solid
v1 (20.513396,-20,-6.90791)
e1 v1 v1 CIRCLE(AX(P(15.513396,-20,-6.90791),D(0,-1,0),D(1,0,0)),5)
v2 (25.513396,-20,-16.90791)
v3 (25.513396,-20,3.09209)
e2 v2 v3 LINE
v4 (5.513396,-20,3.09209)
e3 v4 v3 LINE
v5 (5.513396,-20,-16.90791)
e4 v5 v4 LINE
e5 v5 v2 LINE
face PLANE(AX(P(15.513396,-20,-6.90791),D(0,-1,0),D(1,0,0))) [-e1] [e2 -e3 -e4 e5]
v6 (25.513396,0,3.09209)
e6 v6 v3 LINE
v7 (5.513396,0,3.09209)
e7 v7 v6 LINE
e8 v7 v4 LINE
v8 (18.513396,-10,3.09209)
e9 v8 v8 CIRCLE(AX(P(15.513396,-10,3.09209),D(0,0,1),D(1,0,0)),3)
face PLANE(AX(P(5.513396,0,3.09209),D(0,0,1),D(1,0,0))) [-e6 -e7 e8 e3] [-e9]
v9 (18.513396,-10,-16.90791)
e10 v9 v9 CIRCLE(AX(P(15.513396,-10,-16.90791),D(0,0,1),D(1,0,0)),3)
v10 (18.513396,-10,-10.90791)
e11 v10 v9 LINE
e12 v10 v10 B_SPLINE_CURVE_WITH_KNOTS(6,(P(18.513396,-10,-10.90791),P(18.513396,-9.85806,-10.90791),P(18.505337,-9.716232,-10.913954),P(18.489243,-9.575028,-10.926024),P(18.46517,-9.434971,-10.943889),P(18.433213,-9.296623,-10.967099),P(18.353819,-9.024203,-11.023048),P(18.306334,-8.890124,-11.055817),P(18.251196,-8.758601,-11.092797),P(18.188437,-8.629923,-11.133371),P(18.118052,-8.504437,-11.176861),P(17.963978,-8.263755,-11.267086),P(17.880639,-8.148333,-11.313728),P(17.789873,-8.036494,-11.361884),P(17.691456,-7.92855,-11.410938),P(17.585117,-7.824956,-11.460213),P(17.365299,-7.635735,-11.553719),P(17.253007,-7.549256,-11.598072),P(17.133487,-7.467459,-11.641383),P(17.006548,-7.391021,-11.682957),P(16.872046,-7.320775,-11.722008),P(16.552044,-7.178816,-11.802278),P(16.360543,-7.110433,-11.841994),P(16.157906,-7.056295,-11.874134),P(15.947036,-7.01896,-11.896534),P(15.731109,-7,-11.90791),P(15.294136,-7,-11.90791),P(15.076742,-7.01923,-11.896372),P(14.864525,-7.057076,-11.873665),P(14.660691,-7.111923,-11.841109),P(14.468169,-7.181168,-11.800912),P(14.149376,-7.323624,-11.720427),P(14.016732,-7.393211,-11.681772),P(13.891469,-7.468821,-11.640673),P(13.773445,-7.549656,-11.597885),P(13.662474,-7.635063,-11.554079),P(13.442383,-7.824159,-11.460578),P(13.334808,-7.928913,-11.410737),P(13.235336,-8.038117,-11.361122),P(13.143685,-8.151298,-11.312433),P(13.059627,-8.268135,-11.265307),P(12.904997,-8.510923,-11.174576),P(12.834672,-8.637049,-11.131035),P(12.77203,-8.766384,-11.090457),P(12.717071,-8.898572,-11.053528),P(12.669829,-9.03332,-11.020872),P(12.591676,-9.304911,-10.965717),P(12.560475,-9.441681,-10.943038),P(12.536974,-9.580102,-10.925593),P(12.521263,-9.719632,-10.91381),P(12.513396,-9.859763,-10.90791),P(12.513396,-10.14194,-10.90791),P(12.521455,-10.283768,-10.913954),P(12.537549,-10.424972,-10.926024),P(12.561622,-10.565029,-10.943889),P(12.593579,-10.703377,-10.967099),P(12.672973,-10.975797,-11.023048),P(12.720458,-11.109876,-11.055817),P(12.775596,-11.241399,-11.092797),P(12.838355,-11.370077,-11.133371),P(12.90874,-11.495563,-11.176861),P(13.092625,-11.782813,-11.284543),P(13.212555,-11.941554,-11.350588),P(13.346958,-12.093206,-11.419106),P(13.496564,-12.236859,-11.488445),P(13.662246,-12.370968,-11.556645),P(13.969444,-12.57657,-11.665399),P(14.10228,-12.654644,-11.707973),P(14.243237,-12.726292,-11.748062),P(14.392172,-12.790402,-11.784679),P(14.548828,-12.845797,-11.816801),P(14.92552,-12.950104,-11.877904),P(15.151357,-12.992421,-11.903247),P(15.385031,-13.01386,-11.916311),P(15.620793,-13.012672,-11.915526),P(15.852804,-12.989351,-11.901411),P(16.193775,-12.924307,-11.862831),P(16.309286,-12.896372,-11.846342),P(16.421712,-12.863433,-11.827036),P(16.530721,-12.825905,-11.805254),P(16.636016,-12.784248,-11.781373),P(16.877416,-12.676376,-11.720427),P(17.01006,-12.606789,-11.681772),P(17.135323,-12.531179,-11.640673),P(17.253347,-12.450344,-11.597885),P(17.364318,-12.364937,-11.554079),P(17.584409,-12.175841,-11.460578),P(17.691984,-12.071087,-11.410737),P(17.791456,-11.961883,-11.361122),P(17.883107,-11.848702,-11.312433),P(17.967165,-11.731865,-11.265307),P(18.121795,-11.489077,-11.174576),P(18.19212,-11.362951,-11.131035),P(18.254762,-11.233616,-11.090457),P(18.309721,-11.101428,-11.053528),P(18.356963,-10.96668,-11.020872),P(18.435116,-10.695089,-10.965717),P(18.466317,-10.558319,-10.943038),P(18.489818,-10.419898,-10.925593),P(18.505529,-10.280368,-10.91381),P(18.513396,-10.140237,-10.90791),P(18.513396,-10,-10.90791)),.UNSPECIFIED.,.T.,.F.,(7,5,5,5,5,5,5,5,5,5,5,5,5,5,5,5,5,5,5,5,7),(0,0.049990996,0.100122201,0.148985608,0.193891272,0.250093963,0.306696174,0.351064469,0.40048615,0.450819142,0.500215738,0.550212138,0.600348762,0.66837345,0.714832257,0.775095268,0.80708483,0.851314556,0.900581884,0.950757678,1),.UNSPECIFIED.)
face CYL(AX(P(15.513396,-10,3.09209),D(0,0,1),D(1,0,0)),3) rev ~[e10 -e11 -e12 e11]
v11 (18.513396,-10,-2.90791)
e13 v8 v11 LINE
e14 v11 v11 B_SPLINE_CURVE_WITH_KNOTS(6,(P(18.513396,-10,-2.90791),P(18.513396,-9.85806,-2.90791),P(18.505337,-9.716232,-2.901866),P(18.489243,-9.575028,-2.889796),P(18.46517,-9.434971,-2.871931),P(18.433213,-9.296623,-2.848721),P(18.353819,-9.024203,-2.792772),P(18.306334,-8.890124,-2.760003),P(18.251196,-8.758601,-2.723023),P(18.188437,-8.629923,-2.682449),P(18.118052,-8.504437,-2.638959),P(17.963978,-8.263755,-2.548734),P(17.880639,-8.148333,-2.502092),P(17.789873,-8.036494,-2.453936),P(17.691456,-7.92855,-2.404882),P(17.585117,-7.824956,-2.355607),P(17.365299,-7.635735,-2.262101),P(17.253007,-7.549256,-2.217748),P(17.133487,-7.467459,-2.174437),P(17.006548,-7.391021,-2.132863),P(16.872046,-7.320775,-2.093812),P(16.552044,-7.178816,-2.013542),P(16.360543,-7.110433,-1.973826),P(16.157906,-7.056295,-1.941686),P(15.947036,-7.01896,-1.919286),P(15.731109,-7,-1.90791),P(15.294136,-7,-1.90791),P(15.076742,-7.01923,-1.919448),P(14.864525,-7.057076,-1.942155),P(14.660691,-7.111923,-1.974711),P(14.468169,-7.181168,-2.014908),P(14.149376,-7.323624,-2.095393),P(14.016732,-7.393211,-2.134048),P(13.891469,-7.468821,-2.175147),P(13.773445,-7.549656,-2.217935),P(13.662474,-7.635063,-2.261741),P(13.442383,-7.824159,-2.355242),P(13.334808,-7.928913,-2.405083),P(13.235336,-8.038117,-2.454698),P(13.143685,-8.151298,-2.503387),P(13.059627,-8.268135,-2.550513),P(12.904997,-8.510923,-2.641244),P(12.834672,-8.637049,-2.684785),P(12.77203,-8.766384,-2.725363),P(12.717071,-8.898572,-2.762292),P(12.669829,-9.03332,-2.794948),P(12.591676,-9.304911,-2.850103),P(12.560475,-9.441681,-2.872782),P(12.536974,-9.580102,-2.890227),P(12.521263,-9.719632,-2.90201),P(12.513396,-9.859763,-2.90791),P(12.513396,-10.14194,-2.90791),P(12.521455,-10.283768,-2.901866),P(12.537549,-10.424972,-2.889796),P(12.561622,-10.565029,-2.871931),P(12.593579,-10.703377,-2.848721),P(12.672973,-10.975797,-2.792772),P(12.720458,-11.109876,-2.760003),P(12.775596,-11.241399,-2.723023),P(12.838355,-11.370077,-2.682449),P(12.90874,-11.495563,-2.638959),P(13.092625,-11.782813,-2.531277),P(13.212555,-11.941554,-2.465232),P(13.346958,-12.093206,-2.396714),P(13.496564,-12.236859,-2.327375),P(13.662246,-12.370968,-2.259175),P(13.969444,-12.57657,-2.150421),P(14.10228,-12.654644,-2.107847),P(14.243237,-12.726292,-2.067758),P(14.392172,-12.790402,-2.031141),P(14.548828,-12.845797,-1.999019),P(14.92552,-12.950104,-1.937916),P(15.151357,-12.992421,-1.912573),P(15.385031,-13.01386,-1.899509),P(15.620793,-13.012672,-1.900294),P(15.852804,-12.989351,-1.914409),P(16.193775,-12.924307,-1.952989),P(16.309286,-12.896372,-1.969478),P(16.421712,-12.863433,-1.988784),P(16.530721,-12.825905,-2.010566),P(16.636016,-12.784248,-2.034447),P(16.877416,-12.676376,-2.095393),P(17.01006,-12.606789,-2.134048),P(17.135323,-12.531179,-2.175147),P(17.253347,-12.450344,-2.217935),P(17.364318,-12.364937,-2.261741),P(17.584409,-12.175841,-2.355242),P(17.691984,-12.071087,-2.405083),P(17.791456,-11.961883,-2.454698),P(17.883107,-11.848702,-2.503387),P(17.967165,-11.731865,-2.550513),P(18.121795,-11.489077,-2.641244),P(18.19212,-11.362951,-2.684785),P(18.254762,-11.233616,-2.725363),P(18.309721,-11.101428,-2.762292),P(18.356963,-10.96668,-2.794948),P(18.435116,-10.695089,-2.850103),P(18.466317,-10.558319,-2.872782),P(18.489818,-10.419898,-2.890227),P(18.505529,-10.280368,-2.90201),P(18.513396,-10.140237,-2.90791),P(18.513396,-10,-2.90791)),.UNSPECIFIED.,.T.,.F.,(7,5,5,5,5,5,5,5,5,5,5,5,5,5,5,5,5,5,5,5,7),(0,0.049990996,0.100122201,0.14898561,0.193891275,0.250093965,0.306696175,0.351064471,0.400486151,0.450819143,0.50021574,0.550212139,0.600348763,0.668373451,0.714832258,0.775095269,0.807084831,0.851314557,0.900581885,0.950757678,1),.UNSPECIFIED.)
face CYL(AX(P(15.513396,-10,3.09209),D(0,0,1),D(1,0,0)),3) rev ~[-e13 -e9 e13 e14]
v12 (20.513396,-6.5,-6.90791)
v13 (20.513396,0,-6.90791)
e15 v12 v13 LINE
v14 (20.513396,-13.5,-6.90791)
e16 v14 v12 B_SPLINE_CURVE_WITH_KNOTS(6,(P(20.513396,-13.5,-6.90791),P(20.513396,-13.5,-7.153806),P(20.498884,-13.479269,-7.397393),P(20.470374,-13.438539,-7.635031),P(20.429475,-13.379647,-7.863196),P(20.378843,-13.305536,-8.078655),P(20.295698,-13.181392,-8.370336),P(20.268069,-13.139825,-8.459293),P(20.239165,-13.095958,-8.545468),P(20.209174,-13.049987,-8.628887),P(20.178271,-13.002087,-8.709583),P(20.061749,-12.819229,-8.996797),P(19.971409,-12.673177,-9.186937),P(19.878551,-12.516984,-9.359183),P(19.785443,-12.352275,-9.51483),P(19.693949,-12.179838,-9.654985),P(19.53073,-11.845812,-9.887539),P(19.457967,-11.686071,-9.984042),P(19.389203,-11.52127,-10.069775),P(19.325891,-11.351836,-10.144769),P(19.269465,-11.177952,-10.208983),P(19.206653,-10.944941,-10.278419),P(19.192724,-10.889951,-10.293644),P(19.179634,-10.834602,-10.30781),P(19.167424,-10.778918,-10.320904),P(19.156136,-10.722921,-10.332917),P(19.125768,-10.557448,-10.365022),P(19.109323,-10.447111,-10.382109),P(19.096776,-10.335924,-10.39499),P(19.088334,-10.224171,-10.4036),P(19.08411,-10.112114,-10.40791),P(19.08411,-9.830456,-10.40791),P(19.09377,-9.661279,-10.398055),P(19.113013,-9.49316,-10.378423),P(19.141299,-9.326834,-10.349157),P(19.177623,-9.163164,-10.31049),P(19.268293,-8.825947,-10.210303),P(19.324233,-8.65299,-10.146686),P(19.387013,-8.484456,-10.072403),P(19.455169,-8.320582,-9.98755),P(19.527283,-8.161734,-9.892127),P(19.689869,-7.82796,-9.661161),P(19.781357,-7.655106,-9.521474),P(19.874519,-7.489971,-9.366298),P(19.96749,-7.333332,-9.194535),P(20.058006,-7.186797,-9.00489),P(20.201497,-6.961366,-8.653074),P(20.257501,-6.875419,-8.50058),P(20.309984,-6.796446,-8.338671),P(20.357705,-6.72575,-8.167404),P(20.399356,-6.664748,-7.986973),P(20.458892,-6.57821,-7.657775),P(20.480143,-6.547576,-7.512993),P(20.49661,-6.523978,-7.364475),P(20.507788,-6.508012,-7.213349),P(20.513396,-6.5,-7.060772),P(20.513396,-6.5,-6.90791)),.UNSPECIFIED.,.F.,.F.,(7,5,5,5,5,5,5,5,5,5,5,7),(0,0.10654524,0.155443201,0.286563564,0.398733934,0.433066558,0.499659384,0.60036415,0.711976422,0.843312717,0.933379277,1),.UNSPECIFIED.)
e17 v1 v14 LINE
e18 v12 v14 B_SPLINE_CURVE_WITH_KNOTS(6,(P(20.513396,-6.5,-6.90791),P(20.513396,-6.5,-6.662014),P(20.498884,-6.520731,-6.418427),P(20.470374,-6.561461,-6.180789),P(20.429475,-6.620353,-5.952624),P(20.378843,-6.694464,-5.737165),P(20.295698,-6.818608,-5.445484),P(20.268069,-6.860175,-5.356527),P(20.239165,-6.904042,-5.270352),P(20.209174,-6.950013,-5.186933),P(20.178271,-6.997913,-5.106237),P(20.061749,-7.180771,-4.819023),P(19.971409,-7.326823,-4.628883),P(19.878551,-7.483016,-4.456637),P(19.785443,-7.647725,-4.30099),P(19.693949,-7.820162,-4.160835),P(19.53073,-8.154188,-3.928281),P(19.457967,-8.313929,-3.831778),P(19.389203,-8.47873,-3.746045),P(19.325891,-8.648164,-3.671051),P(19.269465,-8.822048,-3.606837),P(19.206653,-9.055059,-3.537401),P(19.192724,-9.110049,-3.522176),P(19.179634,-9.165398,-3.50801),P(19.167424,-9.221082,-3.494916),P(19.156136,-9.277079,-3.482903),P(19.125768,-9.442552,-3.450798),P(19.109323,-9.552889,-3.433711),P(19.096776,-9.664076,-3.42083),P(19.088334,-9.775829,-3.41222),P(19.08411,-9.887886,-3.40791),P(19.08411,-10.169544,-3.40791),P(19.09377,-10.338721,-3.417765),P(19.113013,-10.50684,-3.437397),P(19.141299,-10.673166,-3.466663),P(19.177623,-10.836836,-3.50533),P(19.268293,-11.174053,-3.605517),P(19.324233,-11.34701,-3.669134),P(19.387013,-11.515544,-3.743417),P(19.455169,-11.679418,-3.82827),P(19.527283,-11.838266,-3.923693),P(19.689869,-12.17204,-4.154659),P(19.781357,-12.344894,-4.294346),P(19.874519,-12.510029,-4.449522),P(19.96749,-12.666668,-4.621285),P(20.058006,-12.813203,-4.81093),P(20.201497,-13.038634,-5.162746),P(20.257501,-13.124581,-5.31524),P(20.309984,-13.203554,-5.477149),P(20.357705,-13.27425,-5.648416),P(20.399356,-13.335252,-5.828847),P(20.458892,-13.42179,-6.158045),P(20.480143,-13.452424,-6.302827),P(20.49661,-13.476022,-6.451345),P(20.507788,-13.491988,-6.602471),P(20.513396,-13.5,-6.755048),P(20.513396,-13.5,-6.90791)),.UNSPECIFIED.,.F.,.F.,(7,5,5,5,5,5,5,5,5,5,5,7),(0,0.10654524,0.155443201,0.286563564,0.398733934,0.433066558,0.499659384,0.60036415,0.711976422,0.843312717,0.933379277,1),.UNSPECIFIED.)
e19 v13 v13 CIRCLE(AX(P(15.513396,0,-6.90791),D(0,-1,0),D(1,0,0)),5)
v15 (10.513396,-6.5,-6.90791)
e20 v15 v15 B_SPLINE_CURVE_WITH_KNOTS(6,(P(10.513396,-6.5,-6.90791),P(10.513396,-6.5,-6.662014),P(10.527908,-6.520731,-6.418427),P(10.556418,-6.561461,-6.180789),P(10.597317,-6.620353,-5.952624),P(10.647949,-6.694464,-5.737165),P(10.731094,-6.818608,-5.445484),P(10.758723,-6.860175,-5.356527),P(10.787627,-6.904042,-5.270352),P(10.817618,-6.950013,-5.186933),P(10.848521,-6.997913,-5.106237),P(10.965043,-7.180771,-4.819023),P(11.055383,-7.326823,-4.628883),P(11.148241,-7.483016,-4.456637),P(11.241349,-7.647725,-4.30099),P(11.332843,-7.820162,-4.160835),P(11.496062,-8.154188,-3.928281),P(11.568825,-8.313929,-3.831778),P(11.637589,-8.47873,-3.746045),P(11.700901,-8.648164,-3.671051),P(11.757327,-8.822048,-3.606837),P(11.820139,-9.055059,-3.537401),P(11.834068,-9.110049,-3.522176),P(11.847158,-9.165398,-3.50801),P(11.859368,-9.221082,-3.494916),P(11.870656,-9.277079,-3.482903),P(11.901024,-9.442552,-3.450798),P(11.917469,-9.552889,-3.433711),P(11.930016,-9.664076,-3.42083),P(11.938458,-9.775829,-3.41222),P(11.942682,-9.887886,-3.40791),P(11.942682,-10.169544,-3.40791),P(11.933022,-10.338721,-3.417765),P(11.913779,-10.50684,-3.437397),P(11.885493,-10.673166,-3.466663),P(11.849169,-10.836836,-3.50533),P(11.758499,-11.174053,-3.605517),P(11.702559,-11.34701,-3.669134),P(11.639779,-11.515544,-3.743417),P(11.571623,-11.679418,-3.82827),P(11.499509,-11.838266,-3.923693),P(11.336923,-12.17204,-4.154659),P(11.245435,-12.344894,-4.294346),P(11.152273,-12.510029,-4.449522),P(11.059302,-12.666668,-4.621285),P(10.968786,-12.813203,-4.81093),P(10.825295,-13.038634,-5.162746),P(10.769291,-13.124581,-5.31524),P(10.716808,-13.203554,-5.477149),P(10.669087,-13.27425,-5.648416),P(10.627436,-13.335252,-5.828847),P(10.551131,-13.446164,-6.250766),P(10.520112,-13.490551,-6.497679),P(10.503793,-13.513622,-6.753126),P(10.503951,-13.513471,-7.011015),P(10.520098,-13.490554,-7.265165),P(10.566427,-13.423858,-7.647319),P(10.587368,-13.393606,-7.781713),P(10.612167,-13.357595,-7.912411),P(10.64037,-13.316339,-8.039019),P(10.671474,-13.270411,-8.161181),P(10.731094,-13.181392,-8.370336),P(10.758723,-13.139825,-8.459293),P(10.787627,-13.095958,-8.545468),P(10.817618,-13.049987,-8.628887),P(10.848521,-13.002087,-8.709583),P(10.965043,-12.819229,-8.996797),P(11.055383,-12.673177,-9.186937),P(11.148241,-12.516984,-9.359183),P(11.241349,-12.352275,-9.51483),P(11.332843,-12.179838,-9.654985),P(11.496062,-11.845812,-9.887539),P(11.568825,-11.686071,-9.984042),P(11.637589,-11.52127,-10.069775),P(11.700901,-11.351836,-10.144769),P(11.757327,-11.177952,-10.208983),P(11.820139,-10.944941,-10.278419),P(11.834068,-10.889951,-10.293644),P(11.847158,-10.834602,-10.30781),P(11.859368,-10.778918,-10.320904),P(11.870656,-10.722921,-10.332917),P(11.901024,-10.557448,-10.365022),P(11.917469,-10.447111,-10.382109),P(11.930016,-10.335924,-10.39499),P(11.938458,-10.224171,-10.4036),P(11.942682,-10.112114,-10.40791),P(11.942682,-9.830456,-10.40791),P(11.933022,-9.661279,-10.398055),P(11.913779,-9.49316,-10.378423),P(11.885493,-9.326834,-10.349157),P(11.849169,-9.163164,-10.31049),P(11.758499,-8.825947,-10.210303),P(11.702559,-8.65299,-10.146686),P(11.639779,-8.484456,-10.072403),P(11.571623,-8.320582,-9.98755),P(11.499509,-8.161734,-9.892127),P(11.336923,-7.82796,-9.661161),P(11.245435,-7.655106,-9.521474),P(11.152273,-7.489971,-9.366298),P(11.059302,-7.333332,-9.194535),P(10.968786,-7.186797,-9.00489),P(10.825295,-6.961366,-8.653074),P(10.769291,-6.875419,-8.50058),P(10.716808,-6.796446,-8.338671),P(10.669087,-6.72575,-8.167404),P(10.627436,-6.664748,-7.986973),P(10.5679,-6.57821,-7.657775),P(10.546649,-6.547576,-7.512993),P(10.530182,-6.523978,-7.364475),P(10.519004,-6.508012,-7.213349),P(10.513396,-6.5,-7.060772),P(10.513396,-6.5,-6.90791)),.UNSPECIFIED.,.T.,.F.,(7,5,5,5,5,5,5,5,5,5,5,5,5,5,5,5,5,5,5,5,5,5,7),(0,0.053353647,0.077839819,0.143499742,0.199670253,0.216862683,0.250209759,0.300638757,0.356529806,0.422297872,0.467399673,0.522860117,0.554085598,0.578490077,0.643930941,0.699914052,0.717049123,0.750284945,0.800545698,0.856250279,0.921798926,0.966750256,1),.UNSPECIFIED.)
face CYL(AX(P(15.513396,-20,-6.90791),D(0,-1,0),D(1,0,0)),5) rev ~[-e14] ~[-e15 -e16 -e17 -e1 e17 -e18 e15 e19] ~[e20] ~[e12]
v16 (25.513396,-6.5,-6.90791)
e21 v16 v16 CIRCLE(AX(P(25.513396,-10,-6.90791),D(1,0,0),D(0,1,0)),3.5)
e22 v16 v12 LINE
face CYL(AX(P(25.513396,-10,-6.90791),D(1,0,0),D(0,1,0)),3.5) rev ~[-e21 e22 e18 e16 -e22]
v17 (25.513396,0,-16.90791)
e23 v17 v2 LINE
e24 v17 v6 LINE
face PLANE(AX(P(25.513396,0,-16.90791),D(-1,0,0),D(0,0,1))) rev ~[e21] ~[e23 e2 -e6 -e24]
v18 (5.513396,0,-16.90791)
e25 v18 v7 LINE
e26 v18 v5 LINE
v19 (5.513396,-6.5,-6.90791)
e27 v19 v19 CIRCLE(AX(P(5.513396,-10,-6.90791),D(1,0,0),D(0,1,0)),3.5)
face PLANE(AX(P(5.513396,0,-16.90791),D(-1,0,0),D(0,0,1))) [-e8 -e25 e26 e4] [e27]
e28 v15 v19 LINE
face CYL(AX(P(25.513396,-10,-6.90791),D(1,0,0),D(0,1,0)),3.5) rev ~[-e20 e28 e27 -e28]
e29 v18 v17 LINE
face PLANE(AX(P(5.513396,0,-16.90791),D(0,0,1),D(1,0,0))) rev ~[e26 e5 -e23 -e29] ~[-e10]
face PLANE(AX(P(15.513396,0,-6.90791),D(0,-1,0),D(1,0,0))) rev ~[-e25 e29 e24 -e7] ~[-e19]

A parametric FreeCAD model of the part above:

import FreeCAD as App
import Part
import Sketcher
Q = App.Units.Quantity

doc = App.newDocument("Part")
body = doc.addObject("PartDesign::Body", "Body")

sketch1 = doc.addObject("Sketcher::SketchObject", "Sketch")
body.addObject(sketch1)
sketch1.AttachmentSupport = (doc.XZ_Plane, [""])
sketch1.MapMode = "FlatFace"
sketch1.addGeometry(Part.LineSegment(App.Vector(6, 3, 0), App.Vector(6, -17, 0)), False)
sketch1.addGeometry(Part.LineSegment(App.Vector(6, -17, 0), App.Vector(26, -17, 0)), False)
sketch1.addGeometry(Part.LineSegment(App.Vector(26, -17, 0), App.Vector(26, 3, 0)), False)
sketch1.addGeometry(Part.LineSegment(App.Vector(26, 3, 0), App.Vector(6, 3, 0)), False)
sketch1.addConstraint(Sketcher.Constraint("Coincident", 0, 2, 1, 1))
sketch1.addConstraint(Sketcher.Constraint("Coincident", 1, 2, 2, 1))
sketch1.addConstraint(Sketcher.Constraint("Coincident", 2, 2, 3, 1))
sketch1.addConstraint(Sketcher.Constraint("Coincident", 3, 2, 0, 1))
sketch1.addConstraint(Sketcher.Constraint("Vertical", 0))
sketch1.addConstraint(Sketcher.Constraint("Horizontal", 1))
sketch1.addConstraint(Sketcher.Constraint("Vertical", 2))
sketch1.addConstraint(Sketcher.Constraint("Horizontal", 3))
sketch1.addConstraint(Sketcher.Constraint("Equal", 3, 0))
sketch1.addConstraint(Sketcher.Constraint("DistanceX", 1, 1, 1, 2, Q("20 mm")))
sketch1.addConstraint(Sketcher.Constraint("DistanceY", 0, 2, -1, 1, Q("16.90791 mm")))
sketch1.addConstraint(Sketcher.Constraint("DistanceX", -1, 1, 0, 2, Q("5.513396 mm")))
pad1 = doc.addObject("PartDesign::Pad", "Pad")
body.addObject(pad1)
pad1.Profile = sketch1
pad1.Length = 20

sketch2 = doc.addObject("Sketcher::SketchObject", "Sketch001")
body.addObject(sketch2)
sketch2.AttachmentSupport = (doc.XY_Plane, [""])
sketch2.MapMode = "FlatFace"
sketch2.AttachmentOffset = App.Placement(App.Vector(0, 0, 3.09209), App.Rotation())
sketch2.addGeometry(Part.Circle(App.Vector(15.5, -10, 0), App.Vector(0, 0, 1), 3), False)
sketch2.addConstraint(Sketcher.Constraint("Diameter", 0, Q("6 mm")))
sketch2.addConstraint(Sketcher.Constraint("DistanceY", 0, 3, -1, 1, Q("10 mm")))
sketch2.addConstraint(Sketcher.Constraint("DistanceX", -1, 1, 0, 3, Q("15.513396 mm")))
pocket1 = doc.addObject("PartDesign::Pocket", "Pocket")
body.addObject(pocket1)
pocket1.Profile = sketch2
pocket1.Length = 25

sketch3 = doc.addObject("Sketcher::SketchObject", "Sketch002")
body.addObject(sketch3)
sketch3.AttachmentSupport = (doc.YZ_Plane, [""])
sketch3.MapMode = "FlatFace"
sketch3.AttachmentOffset = App.Placement(App.Vector(0, 0, 25.513396), App.Rotation())
sketch3.addGeometry(Part.Circle(App.Vector(-10, -6.9, 0), App.Vector(0, 0, 1), 3.5), False)
sketch3.addConstraint(Sketcher.Constraint("Diameter", 0, Q("7 mm")))
sketch3.addConstraint(Sketcher.Constraint("DistanceX", 0, 3, -1, 1, Q("10 mm")))
sketch3.addConstraint(Sketcher.Constraint("DistanceY", 0, 3, -1, 1, Q("6.90791 mm")))
pocket2 = doc.addObject("PartDesign::Pocket", "Pocket001")
body.addObject(pocket2)
pocket2.Profile = sketch3
pocket2.Length = 25

sketch4 = doc.addObject("Sketcher::SketchObject", "Sketch003")
body.addObject(sketch4)
sketch4.AttachmentSupport = (doc.XZ_Plane, [""])
sketch4.MapMode = "FlatFace"
sketch4.AttachmentOffset = App.Placement(App.Vector(0, 0, 20), App.Rotation())
sketch4.addGeometry(Part.Circle(App.Vector(16, -7, 0), App.Vector(0, 0, 1), 5), False)
sketch4.addConstraint(Sketcher.Constraint("Diameter", 0, Q("10 mm")))
sketch4.addConstraint(Sketcher.Constraint("DistanceY", 0, 3, -1, 1, Q("6.90791 mm")))
sketch4.addConstraint(Sketcher.Constraint("DistanceX", -1, 1, 0, 3, Q("15.513396 mm")))
pocket3 = doc.addObject("PartDesign::Pocket", "Pocket002")
body.addObject(pocket3)
pocket3.Profile = sketch4
pocket3.Length = 25

doc.recompute()
